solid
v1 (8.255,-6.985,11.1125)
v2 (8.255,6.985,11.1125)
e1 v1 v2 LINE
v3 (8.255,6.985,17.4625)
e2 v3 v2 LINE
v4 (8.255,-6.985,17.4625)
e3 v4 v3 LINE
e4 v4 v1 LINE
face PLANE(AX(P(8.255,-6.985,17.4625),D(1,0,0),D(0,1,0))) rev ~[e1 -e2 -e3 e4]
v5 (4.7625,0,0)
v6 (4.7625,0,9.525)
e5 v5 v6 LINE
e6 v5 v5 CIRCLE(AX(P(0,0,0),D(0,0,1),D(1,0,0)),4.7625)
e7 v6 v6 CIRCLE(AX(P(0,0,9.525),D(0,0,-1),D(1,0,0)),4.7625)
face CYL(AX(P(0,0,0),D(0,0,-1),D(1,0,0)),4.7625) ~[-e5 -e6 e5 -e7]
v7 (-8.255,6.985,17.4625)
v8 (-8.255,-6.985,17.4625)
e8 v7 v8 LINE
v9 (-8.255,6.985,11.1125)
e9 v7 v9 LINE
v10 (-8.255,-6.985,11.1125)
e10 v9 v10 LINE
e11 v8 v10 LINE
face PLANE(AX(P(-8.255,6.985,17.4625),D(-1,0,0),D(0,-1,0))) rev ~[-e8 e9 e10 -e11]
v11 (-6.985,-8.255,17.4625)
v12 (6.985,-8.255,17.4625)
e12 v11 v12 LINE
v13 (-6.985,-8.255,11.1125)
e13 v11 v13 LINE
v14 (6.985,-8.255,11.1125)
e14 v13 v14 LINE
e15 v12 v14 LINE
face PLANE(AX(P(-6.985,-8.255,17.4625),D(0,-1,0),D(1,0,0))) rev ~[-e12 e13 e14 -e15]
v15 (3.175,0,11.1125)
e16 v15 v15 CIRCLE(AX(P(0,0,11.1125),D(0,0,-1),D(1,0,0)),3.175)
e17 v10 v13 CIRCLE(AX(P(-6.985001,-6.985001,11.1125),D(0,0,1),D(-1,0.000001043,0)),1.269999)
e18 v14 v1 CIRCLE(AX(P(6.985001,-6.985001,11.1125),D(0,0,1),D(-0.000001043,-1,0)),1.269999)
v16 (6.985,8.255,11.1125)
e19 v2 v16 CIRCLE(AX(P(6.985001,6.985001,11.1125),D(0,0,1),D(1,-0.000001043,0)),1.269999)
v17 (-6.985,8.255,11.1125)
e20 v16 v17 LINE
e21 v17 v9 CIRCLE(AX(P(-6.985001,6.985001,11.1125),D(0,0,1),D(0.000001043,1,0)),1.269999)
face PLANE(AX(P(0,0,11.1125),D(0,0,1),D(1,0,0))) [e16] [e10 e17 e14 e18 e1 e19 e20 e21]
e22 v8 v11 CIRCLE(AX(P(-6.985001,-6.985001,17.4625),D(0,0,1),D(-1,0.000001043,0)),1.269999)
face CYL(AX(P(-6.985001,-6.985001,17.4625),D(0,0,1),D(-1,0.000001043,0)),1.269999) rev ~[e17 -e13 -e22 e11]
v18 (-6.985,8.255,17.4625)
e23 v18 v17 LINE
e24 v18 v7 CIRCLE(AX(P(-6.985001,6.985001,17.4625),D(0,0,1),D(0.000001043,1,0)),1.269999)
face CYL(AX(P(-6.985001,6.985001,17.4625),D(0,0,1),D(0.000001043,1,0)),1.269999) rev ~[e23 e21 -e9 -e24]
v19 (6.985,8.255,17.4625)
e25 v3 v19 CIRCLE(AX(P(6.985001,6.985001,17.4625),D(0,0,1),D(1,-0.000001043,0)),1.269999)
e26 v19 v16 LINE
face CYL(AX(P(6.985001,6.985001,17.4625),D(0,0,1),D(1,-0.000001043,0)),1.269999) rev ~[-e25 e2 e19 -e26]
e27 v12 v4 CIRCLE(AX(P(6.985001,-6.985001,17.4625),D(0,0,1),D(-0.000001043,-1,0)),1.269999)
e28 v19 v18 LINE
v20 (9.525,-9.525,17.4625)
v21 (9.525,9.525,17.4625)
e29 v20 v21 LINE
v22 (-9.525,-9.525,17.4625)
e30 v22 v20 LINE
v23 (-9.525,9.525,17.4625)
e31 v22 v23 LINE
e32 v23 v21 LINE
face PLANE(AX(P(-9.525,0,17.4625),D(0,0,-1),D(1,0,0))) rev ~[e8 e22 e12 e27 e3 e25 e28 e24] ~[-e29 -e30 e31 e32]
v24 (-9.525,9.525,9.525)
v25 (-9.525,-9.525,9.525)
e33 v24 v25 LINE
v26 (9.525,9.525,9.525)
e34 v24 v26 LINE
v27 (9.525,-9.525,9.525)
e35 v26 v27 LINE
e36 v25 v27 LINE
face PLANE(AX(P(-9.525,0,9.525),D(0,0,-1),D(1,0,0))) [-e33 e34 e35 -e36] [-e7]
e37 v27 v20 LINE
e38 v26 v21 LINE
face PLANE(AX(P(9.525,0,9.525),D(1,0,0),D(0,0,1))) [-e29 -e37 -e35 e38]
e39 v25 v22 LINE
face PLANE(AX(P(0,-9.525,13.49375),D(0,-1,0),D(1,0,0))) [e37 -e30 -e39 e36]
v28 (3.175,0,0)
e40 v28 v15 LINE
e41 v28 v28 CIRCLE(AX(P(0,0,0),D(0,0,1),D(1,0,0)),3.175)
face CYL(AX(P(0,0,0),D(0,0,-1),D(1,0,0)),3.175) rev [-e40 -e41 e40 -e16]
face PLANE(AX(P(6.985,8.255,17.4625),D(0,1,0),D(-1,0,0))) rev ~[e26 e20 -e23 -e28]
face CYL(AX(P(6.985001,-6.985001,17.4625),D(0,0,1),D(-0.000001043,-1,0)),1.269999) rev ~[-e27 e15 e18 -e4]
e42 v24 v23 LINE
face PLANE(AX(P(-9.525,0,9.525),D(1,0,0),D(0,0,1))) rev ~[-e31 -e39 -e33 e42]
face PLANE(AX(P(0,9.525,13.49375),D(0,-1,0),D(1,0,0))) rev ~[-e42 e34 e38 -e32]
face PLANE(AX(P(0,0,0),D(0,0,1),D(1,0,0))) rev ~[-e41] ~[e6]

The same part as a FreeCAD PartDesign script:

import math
import FreeCAD as App
import Part
import Sketcher
Q = App.Units.Quantity

doc = App.newDocument("Part")
body = doc.addObject("PartDesign::Body", "Body")

# Sketch on XY plane
sketch1 = body.newObject("Sketcher::SketchObject", "Sketch")
sketch1.AttachmentSupport = (doc.getObject("XY_Plane"), [""])
sketch1.MapMode = "FlatFace"
sketch1.addGeometry(Part.Circle(App.Vector(0, 0, 0), App.Vector(0, 0, 1), 4.8), False)
sketch1.addConstraint(Sketcher.Constraint("Coincident", 0, 3, -1, 1))
sketch1.addConstraint(Sketcher.Constraint("Diameter", 0, Q("0.375 in")))
pad1 = body.newObject("PartDesign::Pad", "Pad")
pad1.Profile = sketch1
pad1.Length = Q("0.6875 in")

# Sketch on XZ plane
sketch2 = body.newObject("Sketcher::SketchObject", "Sketch001")
sketch2.AttachmentSupport = (doc.getObject("XZ_Plane"), [""])
sketch2.MapMode = "FlatFace"
sketch2.addGeometry(Part.LineSegment(App.Vector(-10, 17, 0), App.Vector(-10, 10, 0)), False)
sketch2.addGeometry(Part.LineSegment(App.Vector(-10, 10, 0), App.Vector(10, 10, 0)), False)
sketch2.addGeometry(Part.LineSegment(App.Vector(10, 10, 0), App.Vector(10, 17, 0)), False)
sketch2.addGeometry(Part.LineSegment(App.Vector(10, 17, 0), App.Vector(-10, 17, 0)), False)
sketch2.addConstraint(Sketcher.Constraint("Coincident", 0, 2, 1, 1))
sketch2.addConstraint(Sketcher.Constraint("Coincident", 1, 2, 2, 1))
sketch2.addConstraint(Sketcher.Constraint("Coincident", 2, 2, 3, 1))
sketch2.addConstraint(Sketcher.Constraint("Coincident", 3, 2, 0, 1))
sketch2.addConstraint(Sketcher.Constraint("Vertical", 0))
sketch2.addConstraint(Sketcher.Constraint("Horizontal", 1))
sketch2.addConstraint(Sketcher.Constraint("Vertical", 2))
sketch2.addConstraint(Sketcher.Constraint("Horizontal", 3))
sketch2.addConstraint(Sketcher.Constraint("DistanceX", 1, 1, 1, 2, Q("0.75 in")))
sketch2.addConstraint(Sketcher.Constraint("DistanceY", 0, 2, 0, 1, Q("0.3125 in")))
sketch2.addConstraint(Sketcher.Constraint("DistanceX", 0, 2, -1, 1, Q("0.375 in")))
sketch2.addConstraint(Sketcher.Constraint("DistanceY", -1, 1, 0, 2, Q("0.375 in")))
pad2 = body.newObject("PartDesign::Pad", "Pad001")
pad2.Profile = sketch2
pad2.Length = Q("0.75 in")
pad2.Midplane = True

# Sketch on XY plane
sketch3 = body.newObject("Sketcher::SketchObject", "Sketch002")
sketch3.AttachmentSupport = (doc.getObject("XY_Plane"), [""])
sketch3.MapMode = "FlatFace"
sketch3.AttachmentOffset = App.Placement(App.Vector(0, 0, 0.6875 * 25.4), App.Rotation())
sketch3.addGeometry(Part.LineSegment(App.Vector(7, 8.3, 0), App.Vector(-7, 8.3, 0)), False)
sketch3.addGeometry(Part.ArcOfCircle(Part.Circle(App.Vector(-7, 7, 0), App.Vector(0, 0, 1), 1.3), math.radians(90), math.radians(180)), False)
sketch3.addGeometry(Part.LineSegment(App.Vector(-8.3, 7, 0), App.Vector(-8.3, -7, 0)), False)
sketch3.addGeometry(Part.ArcOfCircle(Part.Circle(App.Vector(-7, -7, 0), App.Vector(0, 0, 1), 1.3), math.radians(180), math.radians(270)), False)
sketch3.addGeometry(Part.LineSegment(App.Vector(-7, -8.3, 0), App.Vector(7, -8.3, 0)), False)
sketch3.addGeometry(Part.ArcOfCircle(Part.Circle(App.Vector(7, -7, 0), App.Vector(0, 0, 1), 1.3), math.radians(-90), math.radians(0)), False)
sketch3.addGeometry(Part.LineSegment(App.Vector(8.3, -7, 0), App.Vector(8.3, 7, 0)), False)
sketch3.addGeometry(Part.ArcOfCircle(Part.Circle(App.Vector(7, 7, 0), App.Vector(0, 0, 1), 1.3), math.radians(0), math.radians(90)), False)
sketch3.addConstraint(Sketcher.Constraint("Tangent", 0, 2, 1, 1))
sketch3.addConstraint(Sketcher.Constraint("Tangent", 1, 2, 2, 1))
sketch3.addConstraint(Sketcher.Constraint("Tangent", 2, 2, 3, 1))
sketch3.addConstraint(Sketcher.Constraint("Tangent", 3, 2, 4, 1))
sketch3.addConstraint(Sketcher.Constraint("Tangent", 4, 2, 5, 1))
sketch3.addConstraint(Sketcher.Constraint("Tangent", 5, 2, 6, 1))
sketch3.addConstraint(Sketcher.Constraint("Tangent", 6, 2, 7, 1))
sketch3.addConstraint(Sketcher.Constraint("Tangent", 7, 2, 0, 1))
sketch3.addConstraint(Sketcher.Constraint("Horizontal", 0))
sketch3.addConstraint(Sketcher.Constraint("Vertical", 2))
sketch3.addConstraint(Sketcher.Constraint("Horizontal", 4))
sketch3.addConstraint(Sketcher.Constraint("Vertical", 6))
sketch3.addConstraint(Sketcher.Constraint("Equal", 1, 3))
sketch3.addConstraint(Sketcher.Constraint("Equal", 3, 5))
sketch3.addConstraint(Sketcher.Constraint("Equal", 5, 7))
sketch3.addConstraint(Sketcher.Constraint("Symmetric", 1, 3, 5, 3, -1, 1))
sketch3.addConstraint(Sketcher.Constraint("Equal", 4, 2))
sketch3.addConstraint(Sketcher.Constraint("Radius", 1, Q("0.0499999 in")))
sketch3.addConstraint(Sketcher.Constraint("DistanceX", 0, 2, 0, 1, Q("0.55 in")))
pocket1 = body.newObject("PartDesign::Pocket", "Pocket")
pocket1.Profile = sketch3
pocket1.Length = Q("0.25 in")

# Sketch on XY plane
sketch4 = body.newObject("Sketcher::SketchObject", "Sketch003")
sketch4.AttachmentSupport = (doc.getObject("XY_Plane"), [""])
sketch4.MapMode = "FlatFace"
sketch4.addGeometry(Part.Circle(App.Vector(0, 0, 0), App.Vector(0, 0, 1), 3.2), False)
sketch4.addConstraint(Sketcher.Constraint("Coincident", 0, 3, -1, 1))
sketch4.addConstraint(Sketcher.Constraint("Diameter", 0, Q("0.25 in")))
pocket2 = body.newObject("PartDesign::Pocket", "Pocket001")
pocket2.Profile = sketch4
pocket2.Length = Q("0.6875 in")
pocket2.Reversed = True

doc.recompute()
